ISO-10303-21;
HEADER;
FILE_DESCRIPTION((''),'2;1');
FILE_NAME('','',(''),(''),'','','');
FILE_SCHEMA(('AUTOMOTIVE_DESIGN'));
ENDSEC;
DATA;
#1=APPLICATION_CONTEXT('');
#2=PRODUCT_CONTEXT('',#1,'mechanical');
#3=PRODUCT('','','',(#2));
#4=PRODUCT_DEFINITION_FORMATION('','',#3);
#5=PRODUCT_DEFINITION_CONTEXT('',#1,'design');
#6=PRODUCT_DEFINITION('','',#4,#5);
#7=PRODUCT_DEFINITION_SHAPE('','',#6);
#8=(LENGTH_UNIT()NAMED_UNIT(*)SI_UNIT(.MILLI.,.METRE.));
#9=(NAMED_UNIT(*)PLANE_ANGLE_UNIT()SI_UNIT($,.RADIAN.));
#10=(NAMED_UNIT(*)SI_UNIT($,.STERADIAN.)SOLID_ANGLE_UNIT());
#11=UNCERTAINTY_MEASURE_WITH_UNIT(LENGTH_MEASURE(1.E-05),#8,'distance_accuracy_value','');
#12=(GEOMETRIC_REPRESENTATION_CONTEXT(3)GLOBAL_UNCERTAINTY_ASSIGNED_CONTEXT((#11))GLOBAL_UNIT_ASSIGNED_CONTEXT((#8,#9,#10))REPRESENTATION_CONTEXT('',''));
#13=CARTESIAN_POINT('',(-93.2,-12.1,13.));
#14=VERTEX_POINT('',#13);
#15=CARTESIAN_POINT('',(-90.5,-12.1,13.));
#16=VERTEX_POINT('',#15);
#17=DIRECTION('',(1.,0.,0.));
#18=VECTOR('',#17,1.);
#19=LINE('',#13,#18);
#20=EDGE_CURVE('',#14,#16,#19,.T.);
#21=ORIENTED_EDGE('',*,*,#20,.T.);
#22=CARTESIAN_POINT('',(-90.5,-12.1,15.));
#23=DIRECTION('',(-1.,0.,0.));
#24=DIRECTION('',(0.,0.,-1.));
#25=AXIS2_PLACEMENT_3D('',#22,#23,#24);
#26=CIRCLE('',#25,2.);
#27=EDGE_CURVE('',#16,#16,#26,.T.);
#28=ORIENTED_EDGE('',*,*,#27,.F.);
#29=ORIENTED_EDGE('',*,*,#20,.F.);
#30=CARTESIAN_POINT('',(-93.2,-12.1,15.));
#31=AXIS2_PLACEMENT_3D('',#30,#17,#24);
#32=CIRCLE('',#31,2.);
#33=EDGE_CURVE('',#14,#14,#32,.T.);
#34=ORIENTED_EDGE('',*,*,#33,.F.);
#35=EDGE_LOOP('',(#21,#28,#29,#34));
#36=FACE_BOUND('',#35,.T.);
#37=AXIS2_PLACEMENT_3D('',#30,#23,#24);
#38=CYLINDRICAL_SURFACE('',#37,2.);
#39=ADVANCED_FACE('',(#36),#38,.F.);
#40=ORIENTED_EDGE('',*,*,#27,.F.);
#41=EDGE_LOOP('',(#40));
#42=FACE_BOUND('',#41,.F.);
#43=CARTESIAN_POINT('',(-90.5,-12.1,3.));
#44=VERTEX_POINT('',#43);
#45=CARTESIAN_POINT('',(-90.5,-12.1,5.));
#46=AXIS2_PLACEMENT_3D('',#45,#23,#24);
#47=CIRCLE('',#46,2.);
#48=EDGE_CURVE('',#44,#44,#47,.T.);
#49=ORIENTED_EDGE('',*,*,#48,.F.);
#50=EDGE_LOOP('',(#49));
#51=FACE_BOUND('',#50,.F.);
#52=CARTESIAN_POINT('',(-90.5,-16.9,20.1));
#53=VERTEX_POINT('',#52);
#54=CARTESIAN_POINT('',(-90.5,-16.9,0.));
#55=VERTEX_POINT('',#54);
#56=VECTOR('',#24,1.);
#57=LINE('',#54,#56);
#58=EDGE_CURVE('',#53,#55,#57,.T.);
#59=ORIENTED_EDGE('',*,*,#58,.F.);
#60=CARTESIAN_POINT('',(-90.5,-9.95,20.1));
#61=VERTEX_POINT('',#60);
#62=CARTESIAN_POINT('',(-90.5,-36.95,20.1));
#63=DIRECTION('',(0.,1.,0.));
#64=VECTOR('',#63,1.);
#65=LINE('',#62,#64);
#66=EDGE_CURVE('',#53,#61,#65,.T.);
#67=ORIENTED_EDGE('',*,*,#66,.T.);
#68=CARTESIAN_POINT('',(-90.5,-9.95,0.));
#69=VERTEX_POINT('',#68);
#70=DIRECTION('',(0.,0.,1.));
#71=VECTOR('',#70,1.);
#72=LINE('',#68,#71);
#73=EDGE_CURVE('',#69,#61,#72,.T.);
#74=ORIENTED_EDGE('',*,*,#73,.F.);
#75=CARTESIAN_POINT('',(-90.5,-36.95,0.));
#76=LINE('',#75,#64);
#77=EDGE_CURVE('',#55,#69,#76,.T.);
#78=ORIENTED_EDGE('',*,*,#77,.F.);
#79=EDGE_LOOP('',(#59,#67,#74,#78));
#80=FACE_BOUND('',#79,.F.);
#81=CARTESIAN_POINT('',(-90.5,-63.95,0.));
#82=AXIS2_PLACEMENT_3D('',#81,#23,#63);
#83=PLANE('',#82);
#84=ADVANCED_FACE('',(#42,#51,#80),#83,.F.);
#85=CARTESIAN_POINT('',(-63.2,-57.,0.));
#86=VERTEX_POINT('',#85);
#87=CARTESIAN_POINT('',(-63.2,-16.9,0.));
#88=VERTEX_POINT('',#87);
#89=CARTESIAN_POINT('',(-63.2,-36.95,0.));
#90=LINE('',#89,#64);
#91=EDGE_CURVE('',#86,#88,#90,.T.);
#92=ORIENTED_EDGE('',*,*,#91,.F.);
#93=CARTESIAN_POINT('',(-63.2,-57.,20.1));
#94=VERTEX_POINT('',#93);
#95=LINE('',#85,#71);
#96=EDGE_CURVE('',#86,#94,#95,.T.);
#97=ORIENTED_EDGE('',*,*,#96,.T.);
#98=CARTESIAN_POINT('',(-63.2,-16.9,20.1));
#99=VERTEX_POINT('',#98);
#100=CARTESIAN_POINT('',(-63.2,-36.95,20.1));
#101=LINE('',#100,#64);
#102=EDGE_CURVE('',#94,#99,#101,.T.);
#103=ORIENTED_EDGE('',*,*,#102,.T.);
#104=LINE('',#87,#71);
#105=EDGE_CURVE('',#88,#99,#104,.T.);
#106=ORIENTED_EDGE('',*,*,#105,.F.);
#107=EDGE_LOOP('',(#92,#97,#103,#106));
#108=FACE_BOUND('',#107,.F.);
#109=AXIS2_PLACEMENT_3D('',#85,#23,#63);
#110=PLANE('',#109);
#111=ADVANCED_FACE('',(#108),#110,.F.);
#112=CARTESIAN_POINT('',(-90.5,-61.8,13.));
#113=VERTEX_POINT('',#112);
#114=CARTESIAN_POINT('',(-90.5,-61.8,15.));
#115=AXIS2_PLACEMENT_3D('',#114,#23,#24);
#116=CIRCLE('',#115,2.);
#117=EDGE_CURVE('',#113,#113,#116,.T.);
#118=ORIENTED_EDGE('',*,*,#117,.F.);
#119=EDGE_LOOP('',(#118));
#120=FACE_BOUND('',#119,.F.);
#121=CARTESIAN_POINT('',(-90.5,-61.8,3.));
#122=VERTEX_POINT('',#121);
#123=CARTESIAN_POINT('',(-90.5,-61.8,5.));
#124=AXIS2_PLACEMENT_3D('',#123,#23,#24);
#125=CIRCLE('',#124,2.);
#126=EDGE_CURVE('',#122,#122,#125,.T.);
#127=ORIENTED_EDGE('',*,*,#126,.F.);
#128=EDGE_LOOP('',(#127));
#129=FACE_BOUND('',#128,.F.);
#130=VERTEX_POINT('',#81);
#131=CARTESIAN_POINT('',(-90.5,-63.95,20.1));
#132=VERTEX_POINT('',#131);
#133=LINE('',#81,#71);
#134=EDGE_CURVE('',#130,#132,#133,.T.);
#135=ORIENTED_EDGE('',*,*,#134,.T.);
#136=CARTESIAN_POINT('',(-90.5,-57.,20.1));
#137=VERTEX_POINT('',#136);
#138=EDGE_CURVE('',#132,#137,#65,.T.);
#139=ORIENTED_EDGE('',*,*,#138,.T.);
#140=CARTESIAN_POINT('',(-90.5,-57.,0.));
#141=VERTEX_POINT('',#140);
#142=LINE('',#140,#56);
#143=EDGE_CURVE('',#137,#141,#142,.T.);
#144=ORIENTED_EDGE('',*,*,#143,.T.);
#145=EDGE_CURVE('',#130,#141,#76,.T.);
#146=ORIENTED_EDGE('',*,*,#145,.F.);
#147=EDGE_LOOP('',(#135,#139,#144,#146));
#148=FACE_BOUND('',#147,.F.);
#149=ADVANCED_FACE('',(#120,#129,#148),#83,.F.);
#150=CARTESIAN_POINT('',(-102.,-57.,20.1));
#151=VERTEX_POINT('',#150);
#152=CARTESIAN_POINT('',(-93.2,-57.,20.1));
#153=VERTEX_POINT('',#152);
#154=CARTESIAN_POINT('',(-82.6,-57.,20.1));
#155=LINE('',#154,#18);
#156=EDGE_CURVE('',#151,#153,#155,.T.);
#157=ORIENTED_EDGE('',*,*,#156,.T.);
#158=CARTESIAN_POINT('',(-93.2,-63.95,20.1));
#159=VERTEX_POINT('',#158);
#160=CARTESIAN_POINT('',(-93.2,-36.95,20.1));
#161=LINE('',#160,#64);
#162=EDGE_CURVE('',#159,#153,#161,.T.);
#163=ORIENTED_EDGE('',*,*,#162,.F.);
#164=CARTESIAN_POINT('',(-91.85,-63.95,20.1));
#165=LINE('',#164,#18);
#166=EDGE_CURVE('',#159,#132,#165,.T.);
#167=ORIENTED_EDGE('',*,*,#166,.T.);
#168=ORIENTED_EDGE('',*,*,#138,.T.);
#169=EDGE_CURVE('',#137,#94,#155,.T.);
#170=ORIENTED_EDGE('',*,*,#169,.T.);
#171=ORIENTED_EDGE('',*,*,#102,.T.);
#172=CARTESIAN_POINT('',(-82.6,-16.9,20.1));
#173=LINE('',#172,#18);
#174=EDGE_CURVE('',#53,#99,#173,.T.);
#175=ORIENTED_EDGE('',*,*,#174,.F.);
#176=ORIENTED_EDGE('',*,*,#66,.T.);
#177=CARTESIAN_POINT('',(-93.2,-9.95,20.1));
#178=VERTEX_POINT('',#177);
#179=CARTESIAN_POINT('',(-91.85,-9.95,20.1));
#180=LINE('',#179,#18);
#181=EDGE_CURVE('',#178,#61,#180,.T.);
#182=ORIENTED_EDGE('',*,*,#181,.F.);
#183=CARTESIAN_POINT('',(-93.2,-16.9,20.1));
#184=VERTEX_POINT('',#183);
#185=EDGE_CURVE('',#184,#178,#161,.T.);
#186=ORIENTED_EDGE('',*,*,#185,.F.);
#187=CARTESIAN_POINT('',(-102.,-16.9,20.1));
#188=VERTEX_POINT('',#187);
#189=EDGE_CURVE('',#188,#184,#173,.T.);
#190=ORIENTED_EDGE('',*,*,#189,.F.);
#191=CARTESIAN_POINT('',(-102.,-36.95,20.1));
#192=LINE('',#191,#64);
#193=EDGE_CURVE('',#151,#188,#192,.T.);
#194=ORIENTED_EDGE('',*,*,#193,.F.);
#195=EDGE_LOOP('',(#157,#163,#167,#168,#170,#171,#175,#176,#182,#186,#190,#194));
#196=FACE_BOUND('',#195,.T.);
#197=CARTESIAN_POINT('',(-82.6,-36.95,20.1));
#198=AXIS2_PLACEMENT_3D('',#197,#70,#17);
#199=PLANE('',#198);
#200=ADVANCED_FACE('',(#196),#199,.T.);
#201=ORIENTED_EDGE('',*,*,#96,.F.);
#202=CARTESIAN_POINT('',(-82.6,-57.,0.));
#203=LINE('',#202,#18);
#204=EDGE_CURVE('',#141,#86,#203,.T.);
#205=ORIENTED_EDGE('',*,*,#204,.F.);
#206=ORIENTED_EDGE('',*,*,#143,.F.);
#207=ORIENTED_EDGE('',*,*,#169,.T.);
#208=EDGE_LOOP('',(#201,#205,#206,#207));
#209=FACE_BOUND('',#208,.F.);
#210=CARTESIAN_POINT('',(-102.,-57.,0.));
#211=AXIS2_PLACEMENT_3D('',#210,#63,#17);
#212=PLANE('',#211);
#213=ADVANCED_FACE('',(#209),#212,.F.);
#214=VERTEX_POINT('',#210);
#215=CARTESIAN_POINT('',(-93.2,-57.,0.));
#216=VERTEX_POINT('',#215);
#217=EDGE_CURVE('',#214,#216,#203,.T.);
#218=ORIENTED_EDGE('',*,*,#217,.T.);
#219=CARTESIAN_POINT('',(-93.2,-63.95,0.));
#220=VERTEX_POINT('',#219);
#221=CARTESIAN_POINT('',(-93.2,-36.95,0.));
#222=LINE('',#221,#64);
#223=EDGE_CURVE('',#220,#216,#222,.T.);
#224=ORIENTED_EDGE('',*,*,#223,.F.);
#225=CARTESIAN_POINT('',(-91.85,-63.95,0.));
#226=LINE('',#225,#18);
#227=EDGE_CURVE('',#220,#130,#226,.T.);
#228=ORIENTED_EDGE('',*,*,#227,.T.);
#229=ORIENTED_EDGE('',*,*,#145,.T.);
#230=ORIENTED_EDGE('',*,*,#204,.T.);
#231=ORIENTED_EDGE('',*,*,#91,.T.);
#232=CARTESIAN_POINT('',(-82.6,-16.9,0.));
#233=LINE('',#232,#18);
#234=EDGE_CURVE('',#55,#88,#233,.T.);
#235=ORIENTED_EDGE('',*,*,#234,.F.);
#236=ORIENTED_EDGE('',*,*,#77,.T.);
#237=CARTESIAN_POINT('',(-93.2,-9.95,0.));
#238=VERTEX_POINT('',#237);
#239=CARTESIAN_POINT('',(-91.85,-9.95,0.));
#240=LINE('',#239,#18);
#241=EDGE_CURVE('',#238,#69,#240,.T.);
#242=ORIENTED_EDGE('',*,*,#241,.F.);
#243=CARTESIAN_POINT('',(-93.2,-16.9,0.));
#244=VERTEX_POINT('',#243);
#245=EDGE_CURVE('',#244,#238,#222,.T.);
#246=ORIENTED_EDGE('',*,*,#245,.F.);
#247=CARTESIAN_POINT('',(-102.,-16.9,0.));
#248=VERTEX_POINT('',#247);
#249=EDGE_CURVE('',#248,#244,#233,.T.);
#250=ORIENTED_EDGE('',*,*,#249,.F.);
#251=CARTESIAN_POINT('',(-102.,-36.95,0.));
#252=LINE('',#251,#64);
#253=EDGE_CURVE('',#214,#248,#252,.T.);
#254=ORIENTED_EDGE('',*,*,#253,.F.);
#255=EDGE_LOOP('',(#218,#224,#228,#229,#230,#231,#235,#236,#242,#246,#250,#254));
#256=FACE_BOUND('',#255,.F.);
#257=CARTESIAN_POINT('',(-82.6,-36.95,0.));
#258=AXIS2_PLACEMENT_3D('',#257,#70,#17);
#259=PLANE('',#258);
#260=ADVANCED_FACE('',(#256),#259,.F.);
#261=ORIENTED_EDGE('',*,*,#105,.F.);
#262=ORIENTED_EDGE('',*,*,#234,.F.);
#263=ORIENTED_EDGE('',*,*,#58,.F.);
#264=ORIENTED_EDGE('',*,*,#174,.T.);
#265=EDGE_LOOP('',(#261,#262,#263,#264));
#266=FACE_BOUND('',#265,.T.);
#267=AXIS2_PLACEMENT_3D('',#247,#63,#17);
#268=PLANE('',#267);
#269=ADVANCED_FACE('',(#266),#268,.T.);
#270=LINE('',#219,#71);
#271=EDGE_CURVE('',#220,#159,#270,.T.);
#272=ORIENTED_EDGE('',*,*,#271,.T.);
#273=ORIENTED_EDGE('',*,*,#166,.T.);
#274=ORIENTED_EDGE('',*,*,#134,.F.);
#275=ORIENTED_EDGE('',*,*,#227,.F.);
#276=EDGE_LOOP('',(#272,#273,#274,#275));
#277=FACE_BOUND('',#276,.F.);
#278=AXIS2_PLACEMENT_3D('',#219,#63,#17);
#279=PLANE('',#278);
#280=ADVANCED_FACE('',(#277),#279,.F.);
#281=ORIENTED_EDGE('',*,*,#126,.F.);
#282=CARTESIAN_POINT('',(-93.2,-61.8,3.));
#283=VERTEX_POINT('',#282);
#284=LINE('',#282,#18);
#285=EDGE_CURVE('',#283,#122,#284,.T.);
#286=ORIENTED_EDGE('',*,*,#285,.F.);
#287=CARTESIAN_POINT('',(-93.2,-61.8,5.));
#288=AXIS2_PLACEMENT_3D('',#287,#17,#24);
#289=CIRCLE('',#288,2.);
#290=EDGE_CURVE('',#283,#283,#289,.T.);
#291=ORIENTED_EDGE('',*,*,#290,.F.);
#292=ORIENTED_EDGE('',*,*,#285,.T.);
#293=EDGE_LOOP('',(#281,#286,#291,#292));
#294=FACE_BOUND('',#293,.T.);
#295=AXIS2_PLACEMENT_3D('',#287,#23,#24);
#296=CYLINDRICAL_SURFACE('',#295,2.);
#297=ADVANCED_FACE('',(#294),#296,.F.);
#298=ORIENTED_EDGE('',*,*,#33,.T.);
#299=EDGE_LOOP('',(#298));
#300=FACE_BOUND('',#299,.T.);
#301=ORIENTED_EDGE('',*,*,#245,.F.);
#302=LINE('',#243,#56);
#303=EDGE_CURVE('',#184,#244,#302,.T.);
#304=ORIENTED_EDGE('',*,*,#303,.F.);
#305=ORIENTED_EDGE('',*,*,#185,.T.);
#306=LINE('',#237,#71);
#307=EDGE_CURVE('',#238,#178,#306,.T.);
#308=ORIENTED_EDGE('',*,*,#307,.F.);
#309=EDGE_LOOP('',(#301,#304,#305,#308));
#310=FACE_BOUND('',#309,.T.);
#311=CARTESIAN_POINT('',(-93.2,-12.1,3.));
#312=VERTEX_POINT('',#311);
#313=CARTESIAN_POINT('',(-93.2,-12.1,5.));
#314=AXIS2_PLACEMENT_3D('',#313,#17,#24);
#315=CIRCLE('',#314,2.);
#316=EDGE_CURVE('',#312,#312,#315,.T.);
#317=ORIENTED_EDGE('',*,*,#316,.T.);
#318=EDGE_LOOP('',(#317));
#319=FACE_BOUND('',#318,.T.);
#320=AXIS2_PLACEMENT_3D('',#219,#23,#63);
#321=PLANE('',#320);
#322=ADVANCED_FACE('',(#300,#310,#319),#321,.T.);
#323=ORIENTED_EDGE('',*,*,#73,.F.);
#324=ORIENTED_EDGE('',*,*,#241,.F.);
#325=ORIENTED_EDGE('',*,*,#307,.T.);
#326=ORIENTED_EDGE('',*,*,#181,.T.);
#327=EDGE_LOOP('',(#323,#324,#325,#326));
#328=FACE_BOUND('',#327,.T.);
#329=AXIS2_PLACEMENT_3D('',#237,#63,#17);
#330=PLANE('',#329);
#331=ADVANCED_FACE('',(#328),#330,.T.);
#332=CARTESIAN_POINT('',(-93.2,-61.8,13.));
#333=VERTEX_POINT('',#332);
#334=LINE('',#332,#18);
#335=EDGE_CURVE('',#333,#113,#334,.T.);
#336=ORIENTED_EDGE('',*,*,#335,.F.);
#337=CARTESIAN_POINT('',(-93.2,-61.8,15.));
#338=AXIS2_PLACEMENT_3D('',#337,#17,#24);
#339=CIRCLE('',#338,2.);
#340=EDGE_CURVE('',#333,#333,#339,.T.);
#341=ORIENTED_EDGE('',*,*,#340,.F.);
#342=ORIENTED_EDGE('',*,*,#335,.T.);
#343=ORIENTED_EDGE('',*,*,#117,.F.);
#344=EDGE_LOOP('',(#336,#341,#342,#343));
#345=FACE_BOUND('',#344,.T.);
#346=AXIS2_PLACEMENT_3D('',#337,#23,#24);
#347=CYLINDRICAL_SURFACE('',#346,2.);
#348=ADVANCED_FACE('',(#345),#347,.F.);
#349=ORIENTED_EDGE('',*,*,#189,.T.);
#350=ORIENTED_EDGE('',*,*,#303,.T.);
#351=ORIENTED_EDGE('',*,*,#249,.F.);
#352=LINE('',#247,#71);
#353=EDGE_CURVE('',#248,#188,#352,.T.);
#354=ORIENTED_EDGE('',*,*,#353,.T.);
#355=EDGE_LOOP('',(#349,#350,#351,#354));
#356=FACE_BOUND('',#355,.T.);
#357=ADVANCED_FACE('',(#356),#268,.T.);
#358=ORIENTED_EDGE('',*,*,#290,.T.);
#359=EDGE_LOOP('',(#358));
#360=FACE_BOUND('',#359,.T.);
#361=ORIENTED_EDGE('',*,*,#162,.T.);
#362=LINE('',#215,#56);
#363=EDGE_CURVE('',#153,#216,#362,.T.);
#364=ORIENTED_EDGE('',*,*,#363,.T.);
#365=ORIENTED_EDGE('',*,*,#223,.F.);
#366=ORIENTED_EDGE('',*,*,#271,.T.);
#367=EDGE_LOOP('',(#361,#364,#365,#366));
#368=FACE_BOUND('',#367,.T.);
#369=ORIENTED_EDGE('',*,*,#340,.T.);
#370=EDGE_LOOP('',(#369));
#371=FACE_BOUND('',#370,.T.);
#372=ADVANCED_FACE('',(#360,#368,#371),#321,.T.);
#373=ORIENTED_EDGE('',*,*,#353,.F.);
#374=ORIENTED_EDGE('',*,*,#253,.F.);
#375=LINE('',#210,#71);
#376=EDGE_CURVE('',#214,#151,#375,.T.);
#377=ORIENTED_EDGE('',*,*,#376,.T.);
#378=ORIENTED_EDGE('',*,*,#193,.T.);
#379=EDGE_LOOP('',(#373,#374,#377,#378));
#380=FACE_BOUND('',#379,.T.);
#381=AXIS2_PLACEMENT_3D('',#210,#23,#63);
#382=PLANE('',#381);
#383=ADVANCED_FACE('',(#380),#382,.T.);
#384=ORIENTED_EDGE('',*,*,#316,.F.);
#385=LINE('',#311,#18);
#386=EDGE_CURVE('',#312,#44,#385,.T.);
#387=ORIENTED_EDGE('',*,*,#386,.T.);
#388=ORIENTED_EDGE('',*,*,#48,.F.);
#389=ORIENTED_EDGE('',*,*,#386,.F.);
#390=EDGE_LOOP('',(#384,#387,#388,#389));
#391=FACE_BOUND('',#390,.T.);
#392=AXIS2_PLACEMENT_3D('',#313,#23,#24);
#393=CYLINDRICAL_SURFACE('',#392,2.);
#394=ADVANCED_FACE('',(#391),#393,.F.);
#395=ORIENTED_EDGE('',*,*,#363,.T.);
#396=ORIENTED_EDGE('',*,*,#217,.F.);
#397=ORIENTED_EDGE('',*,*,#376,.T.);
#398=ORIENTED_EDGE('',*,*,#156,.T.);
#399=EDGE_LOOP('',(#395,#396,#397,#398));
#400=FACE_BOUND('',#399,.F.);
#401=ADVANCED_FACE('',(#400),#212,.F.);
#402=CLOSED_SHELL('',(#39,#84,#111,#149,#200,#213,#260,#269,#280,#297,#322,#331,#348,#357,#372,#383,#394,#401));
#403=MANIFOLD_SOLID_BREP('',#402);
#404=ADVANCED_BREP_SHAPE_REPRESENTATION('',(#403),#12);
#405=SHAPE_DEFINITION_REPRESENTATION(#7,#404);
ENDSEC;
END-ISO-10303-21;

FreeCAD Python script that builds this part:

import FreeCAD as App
import Part
import Sketcher

V = App.Vector


def add_polygon(sketch, points):
    """Adds a closed chain of lines whose ends are joined by coincident constraints."""
    first, n = sketch.GeometryCount, len(points)
    for a, b in zip(points, points[1:] + points[:1]):
        sketch.addGeometry(Part.LineSegment(App.Vector(*a, 0), App.Vector(*b, 0)), False)
    for i in range(n):
        sketch.addConstraint(Sketcher.Constraint("Coincident", first + i, 2, first + (i + 1) % n, 1))

doc = App.newDocument("Part")
body = doc.addObject("PartDesign::Body", "Body")

# Sketch on YZ plane
sketch1 = body.newObject("Sketcher::SketchObject", "Sketch")
sketch1.AttachmentSupport = (doc.getObject("YZ_Plane"), [""])
sketch1.MapMode = "FlatFace"
sketch1.AttachmentOffset = App.Placement(V(0, 0, -97.2), App.Rotation())
sketch1.addGeometry(Part.Circle(V(-71.8, 5, 0), V(0, 0, 1), 2), False)
sketch1.addConstraint(Sketcher.Constraint("Diameter", 0, 4.0))
sketch1.addConstraint(Sketcher.Constraint("DistanceY", -1, 1, 0, 3, 5.0))
sketch1.addConstraint(Sketcher.Constraint("DistanceX", 0, 3, -1, 1, 71.8))
pad1 = body.newObject("PartDesign::Pad", "Pad")
pad1.Profile = sketch1
pad1.Length = 20
body2 = doc.addObject("PartDesign::Body", "Body001")

# Sketch on YZ plane
sketch2 = body2.newObject("Sketcher::SketchObject", "Sketch001")
sketch2.AttachmentSupport = (doc.getObject("YZ_Plane001"), [""])
sketch2.MapMode = "FlatFace"
sketch2.AttachmentOffset = App.Placement(V(0, 0, -97.2), App.Rotation())
sketch2.addGeometry(Part.Circle(V(-71.8, 15, 0), V(0, 0, 1), 2), False)
sketch2.addConstraint(Sketcher.Constraint("Diameter", 0, 4.0))
sketch2.addConstraint(Sketcher.Constraint("DistanceY", -1, 1, 0, 3, 15.0))
sketch2.addConstraint(Sketcher.Constraint("DistanceX", 0, 3, -1, 1, 71.8))
pad2 = body2.newObject("PartDesign::Pad", "Pad001")
pad2.Profile = sketch2
pad2.Length = 20
body3 = doc.addObject("PartDesign::Body", "Body002")

# Sketch on YZ plane
sketch3 = body3.newObject("Sketcher::SketchObject", "Sketch002")
sketch3.AttachmentSupport = (doc.getObject("YZ_Plane002"), [""])
sketch3.MapMode = "FlatFace"
sketch3.AttachmentOffset = App.Placement(V(0, 0, -97.2), App.Rotation())
sketch3.addGeometry(Part.Circle(V(-22.1, 5, 0), V(0, 0, 1), 2), False)
sketch3.addConstraint(Sketcher.Constraint("Diameter", 0, 4.0))
sketch3.addConstraint(Sketcher.Constraint("DistanceY", -1, 1, 0, 3, 5.0))
sketch3.addConstraint(Sketcher.Constraint("DistanceX", 0, 3, -1, 1, 22.1))
pad3 = body3.newObject("PartDesign::Pad", "Pad002")
pad3.Profile = sketch3
pad3.Length = 20
body4 = doc.addObject("PartDesign::Body", "Body003")

# Sketch on YZ plane
sketch4 = body4.newObject("Sketcher::SketchObject", "Sketch003")
sketch4.AttachmentSupport = (doc.getObject("YZ_Plane003"), [""])
sketch4.MapMode = "FlatFace"
sketch4.AttachmentOffset = App.Placement(V(0, 0, -97.2), App.Rotation())
sketch4.addGeometry(Part.Circle(V(-22.1, 15, 0), V(0, 0, 1), 2), False)
sketch4.addConstraint(Sketcher.Constraint("Diameter", 0, 4.0))
sketch4.addConstraint(Sketcher.Constraint("DistanceY", -1, 1, 0, 3, 15.0))
sketch4.addConstraint(Sketcher.Constraint("DistanceX", 0, 3, -1, 1, 22.1))
pad4 = body4.newObject("PartDesign::Pad", "Pad003")
pad4.Profile = sketch4
pad4.Length = 20
body5 = doc.addObject("PartDesign::Body", "Body004")

# Sketch on XY plane
sketch5 = body5.newObject("Sketcher::SketchObject", "Sketch004")
sketch5.AttachmentSupport = (doc.getObject("XY_Plane004"), [""])
sketch5.MapMode = "FlatFace"
add_polygon(sketch5, [(82, -53), (82, -93), (121, -93), (121, -53)])  # lines 0-3
sketch5.addConstraint(Sketcher.Constraint("Vertical", 0))
sketch5.addConstraint(Sketcher.Constraint("Horizontal", 1))
sketch5.addConstraint(Sketcher.Constraint("Vertical", 2))
sketch5.addConstraint(Sketcher.Constraint("Horizontal", 3))
sketch5.addConstraint(Sketcher.Constraint("DistanceX", 1, 1, 1, 2, 38.8))
sketch5.addConstraint(Sketcher.Constraint("DistanceY", 0, 2, 0, 1, 40.1))
sketch5.addConstraint(Sketcher.Constraint("DistanceX", -1, 1, 0, 2, 82.0))
sketch5.addConstraint(Sketcher.Constraint("DistanceY", 0, 2, -1, 1, 93.0))
pad5 = body5.newObject("PartDesign::Pad", "Pad004")
pad5.Profile = sketch5
pad5.Length = 20.1
body6 = doc.addObject("PartDesign::Body", "Body005")

# Sketch on XY plane
sketch6 = body6.newObject("Sketcher::SketchObject", "Sketch005")
sketch6.AttachmentSupport = (doc.getObject("XY_Plane005"), [""])
sketch6.MapMode = "FlatFace"
add_polygon(sketch6, [(90.8, -46), (90.8, -100), (93.5, -100), (93.5, -46)])  # lines 0-3
sketch6.addConstraint(Sketcher.Constraint("Vertical", 0))
sketch6.addConstraint(Sketcher.Constraint("Horizontal", 1))
sketch6.addConstraint(Sketcher.Constraint("Vertical", 2))
sketch6.addConstraint(Sketcher.Constraint("Horizontal", 3))
sketch6.addConstraint(Sketcher.Constraint("DistanceY", 0, 2, 0, 1, 54.0))
sketch6.addConstraint(Sketcher.Constraint("DistanceX", 1, 1, 1, 2, 2.7))
sketch6.addConstraint(Sketcher.Constraint("DistanceX", -1, 1, 0, 2, 90.8))
sketch6.addConstraint(Sketcher.Constraint("DistanceY", 0, 2, -1, 1, 99.95))
pad6 = body6.newObject("PartDesign::Pad", "Pad005")
pad6.Profile = sketch6
pad6.Length = 20.1
doc.recompute()

boolean = body6.newObject("PartDesign::Boolean", "Boolean")
boolean.Type = "Fuse"
boolean.addObjects([body5])
body7 = doc.addObject("PartDesign::Body", "Body006")
doc.recompute()

body6.Placement = App.Placement(V(-188, 26, 0), App.Rotation(V(0, 0, 1), 0))
boolean2 = body7.newObject("PartDesign::Boolean", "Boolean001")
boolean2.Type = "Fuse"
boolean2.addObjects([body6])
doc.recompute()

boolean3 = body7.newObject("PartDesign::Boolean", "Boolean002")
boolean3.Type = "Cut"
boolean3.addObjects([body4])
doc.recompute()

boolean4 = body7.newObject("PartDesign::Boolean", "Boolean003")
boolean4.Type = "Cut"
boolean4.addObjects([body3])
doc.recompute()

boolean5 = body7.newObject("PartDesign::Boolean", "Boolean004")
boolean5.Type = "Cut"
boolean5.addObjects([body2])
doc.recompute()

boolean6 = body7.newObject("PartDesign::Boolean", "Boolean005")
boolean6.Type = "Cut"
boolean6.addObjects([body])
body8 = doc.addObject("PartDesign::Body", "Body007")
doc.recompute()

body7.Placement = App.Placement(V(4, 10, 0), App.Rotation(V(0, 0, 1), 0))
boolean7 = body8.newObject("PartDesign::Boolean", "Boolean006")
boolean7.Type = "Fuse"
boolean7.addObjects([body7])

doc.recompute()
